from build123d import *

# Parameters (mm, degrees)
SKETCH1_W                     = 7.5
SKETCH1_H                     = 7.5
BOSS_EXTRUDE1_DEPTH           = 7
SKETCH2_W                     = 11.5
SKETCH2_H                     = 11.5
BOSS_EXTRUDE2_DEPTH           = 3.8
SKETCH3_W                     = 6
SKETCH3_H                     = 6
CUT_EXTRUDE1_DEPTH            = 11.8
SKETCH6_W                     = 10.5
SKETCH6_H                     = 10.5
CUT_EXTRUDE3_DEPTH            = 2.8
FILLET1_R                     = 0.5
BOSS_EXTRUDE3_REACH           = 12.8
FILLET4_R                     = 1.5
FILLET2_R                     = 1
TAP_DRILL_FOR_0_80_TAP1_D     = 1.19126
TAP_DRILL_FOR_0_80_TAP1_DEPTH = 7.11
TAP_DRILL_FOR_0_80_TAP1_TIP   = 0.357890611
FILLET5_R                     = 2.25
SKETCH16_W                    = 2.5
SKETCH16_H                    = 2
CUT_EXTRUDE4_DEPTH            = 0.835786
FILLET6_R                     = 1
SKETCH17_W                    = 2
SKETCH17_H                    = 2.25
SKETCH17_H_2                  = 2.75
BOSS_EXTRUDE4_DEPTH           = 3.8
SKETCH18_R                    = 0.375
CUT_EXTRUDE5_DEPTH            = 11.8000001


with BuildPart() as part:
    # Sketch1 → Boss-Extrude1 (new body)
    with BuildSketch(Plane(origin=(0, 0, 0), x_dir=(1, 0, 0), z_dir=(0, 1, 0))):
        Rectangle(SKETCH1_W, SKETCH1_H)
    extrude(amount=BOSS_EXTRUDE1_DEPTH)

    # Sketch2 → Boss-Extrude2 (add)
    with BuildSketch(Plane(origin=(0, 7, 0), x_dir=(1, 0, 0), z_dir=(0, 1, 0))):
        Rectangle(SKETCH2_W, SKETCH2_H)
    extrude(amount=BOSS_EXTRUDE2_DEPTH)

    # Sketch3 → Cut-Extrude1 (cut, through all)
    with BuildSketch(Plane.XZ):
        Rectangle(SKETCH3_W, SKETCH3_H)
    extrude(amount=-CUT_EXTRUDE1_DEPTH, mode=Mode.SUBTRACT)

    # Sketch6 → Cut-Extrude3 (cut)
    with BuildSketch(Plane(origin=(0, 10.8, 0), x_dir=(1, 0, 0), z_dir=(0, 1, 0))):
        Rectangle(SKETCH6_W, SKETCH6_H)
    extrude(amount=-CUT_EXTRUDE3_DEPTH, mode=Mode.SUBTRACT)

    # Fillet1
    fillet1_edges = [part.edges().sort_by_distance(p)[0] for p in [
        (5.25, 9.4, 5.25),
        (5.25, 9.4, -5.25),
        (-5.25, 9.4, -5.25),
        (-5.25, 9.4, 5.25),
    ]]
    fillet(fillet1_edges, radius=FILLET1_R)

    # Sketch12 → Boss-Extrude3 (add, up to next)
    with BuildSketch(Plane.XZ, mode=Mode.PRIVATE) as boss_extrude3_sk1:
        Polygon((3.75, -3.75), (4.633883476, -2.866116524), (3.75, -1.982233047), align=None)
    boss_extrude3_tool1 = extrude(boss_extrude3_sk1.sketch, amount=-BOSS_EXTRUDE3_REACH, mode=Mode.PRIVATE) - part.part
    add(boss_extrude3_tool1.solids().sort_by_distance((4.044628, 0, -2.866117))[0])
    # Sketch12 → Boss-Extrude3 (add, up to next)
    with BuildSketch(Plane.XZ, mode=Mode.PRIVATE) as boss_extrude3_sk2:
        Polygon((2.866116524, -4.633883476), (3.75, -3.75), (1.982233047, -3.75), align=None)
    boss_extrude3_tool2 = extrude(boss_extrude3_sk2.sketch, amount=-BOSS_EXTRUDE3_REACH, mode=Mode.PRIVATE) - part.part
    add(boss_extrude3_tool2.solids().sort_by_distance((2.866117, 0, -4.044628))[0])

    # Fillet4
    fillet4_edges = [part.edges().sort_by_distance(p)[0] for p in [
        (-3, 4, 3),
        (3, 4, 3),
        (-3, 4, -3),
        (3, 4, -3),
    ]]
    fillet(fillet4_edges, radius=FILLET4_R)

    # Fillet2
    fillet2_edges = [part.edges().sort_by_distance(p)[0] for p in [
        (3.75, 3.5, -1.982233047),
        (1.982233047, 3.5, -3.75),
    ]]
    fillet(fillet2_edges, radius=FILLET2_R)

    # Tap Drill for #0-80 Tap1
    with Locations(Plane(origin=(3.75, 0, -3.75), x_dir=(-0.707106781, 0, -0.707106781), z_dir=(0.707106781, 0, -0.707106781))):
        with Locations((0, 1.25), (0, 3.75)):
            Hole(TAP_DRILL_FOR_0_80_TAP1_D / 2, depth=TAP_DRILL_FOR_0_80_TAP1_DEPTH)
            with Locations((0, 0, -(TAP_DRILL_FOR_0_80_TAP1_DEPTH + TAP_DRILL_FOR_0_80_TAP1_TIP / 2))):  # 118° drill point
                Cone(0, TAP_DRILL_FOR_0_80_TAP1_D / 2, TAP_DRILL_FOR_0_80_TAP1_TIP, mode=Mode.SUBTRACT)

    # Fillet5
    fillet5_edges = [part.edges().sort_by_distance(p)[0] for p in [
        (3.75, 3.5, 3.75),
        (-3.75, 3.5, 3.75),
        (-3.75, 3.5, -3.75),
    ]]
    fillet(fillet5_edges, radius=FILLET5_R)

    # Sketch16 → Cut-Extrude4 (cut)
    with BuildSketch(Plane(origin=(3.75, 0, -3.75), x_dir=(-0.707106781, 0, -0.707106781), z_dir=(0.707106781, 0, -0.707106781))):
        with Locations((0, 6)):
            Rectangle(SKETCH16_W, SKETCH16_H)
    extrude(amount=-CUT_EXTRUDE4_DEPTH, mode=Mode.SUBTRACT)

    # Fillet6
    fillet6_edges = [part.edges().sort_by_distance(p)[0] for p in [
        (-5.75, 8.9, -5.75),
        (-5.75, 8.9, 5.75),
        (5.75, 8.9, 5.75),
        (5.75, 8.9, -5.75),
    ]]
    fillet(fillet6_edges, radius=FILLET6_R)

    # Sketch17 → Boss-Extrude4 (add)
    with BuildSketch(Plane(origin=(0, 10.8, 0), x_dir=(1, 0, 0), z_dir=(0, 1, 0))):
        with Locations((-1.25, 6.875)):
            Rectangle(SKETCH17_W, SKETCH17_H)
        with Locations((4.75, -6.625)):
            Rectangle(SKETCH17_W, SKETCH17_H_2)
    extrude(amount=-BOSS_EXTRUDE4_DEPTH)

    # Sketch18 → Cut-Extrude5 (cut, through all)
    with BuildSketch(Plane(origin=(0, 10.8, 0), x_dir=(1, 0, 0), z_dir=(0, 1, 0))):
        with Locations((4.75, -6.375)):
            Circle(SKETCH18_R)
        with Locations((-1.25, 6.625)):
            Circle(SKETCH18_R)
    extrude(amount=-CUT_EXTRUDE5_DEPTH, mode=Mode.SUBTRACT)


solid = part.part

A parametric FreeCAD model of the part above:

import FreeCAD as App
import Part
import Sketcher

V = App.Vector
Q = App.Units.Quantity


def edges_at(feature, points):
    """Names of the edges that pass closest to the given points."""
    edges = feature.Shape.Edges
    near = lambda p: min(range(len(edges)), key=lambda i: edges[i].distToShape(Part.Vertex(*p))[0])
    return sorted({f"Edge{near(p) + 1}" for p in points})

doc = App.newDocument("Part")
body = doc.addObject("PartDesign::Body", "Body")

# Sketch on XZ plane
sketch1 = body.newObject("Sketcher::SketchObject", "Sketch")
sketch1.AttachmentSupport = (doc.getObject("XZ_Plane"), [""])
sketch1.MapMode = "FlatFace"
sketch1.addGeometry(Part.LineSegment(V(-4, -4, 0), V(-4, 4, 0)), False)
sketch1.addGeometry(Part.LineSegment(V(-4, 4, 0), V(4, 4, 0)), False)
sketch1.addGeometry(Part.LineSegment(V(4, 4, 0), V(4, -4, 0)), False)
sketch1.addGeometry(Part.LineSegment(V(4, -4, 0), V(-4, -4, 0)), False)
sketch1.addConstraint(Sketcher.Constraint("Coincident", 0, 2, 1, 1))
sketch1.addConstraint(Sketcher.Constraint("Coincident", 1, 2, 2, 1))
sketch1.addConstraint(Sketcher.Constraint("Coincident", 2, 2, 3, 1))
sketch1.addConstraint(Sketcher.Constraint("Coincident", 3, 2, 0, 1))
sketch1.addConstraint(Sketcher.Constraint("Vertical", 0))
sketch1.addConstraint(Sketcher.Constraint("Horizontal", 1))
sketch1.addConstraint(Sketcher.Constraint("Vertical", 2))
sketch1.addConstraint(Sketcher.Constraint("Horizontal", 3))
sketch1.addConstraint(Sketcher.Constraint("Symmetric", 0, 2, 2, 2, -1, 1))
sketch1.addConstraint(Sketcher.Constraint("Equal", 3, 0))
sketch1.addConstraint(Sketcher.Constraint("DistanceX", 1, 1, 1, 2, Q("7.5 mm")))
pad1 = body.newObject("PartDesign::Pad", "Pad")
pad1.Profile = sketch1
pad1.Length = 7
pad1.Reversed = True

# Sketch on XZ plane
sketch2 = body.newObject("Sketcher::SketchObject", "Sketch001")
sketch2.AttachmentSupport = (doc.getObject("XZ_Plane"), [""])
sketch2.MapMode = "FlatFace"
sketch2.AttachmentOffset = App.Placement(V(0, 0, -7), App.Rotation())
sketch2.addGeometry(Part.LineSegment(V(-6, -6, 0), V(-6, 6, 0)), False)
sketch2.addGeometry(Part.LineSegment(V(-6, 6, 0), V(6, 6, 0)), False)
sketch2.addGeometry(Part.LineSegment(V(6, 6, 0), V(6, -6, 0)), False)
sketch2.addGeometry(Part.LineSegment(V(6, -6, 0), V(-6, -6, 0)), False)
sketch2.addConstraint(Sketcher.Constraint("Coincident", 0, 2, 1, 1))
sketch2.addConstraint(Sketcher.Constraint("Coincident", 1, 2, 2, 1))
sketch2.addConstraint(Sketcher.Constraint("Coincident", 2, 2, 3, 1))
sketch2.addConstraint(Sketcher.Constraint("Coincident", 3, 2, 0, 1))
sketch2.addConstraint(Sketcher.Constraint("Vertical", 0))
sketch2.addConstraint(Sketcher.Constraint("Horizontal", 1))
sketch2.addConstraint(Sketcher.Constraint("Vertical", 2))
sketch2.addConstraint(Sketcher.Constraint("Horizontal", 3))
sketch2.addConstraint(Sketcher.Constraint("Symmetric", 0, 2, 2, 2, -1, 1))
sketch2.addConstraint(Sketcher.Constraint("Equal", 3, 0))
sketch2.addConstraint(Sketcher.Constraint("DistanceX", 1, 1, 1, 2, Q("11.5 mm")))
pad2 = body.newObject("PartDesign::Pad", "Pad001")
pad2.Profile = sketch2
pad2.Length = 3.8
pad2.Reversed = True

# Sketch on XZ plane
sketch3 = body.newObject("Sketcher::SketchObject", "Sketch002")
sketch3.AttachmentSupport = (doc.getObject("XZ_Plane"), [""])
sketch3.MapMode = "FlatFace"
sketch3.addGeometry(Part.LineSegment(V(-3, 3, 0), V(-3, -3, 0)), False)
sketch3.addGeometry(Part.LineSegment(V(-3, -3, 0), V(3, -3, 0)), False)
sketch3.addGeometry(Part.LineSegment(V(3, -3, 0), V(3, 3, 0)), False)
sketch3.addGeometry(Part.LineSegment(V(3, 3, 0), V(-3, 3, 0)), False)
sketch3.addConstraint(Sketcher.Constraint("Coincident", 0, 2, 1, 1))
sketch3.addConstraint(Sketcher.Constraint("Coincident", 1, 2, 2, 1))
sketch3.addConstraint(Sketcher.Constraint("Coincident", 2, 2, 3, 1))
sketch3.addConstraint(Sketcher.Constraint("Coincident", 3, 2, 0, 1))
sketch3.addConstraint(Sketcher.Constraint("Vertical", 0))
sketch3.addConstraint(Sketcher.Constraint("Horizontal", 1))
sketch3.addConstraint(Sketcher.Constraint("Vertical", 2))
sketch3.addConstraint(Sketcher.Constraint("Horizontal", 3))
sketch3.addConstraint(Sketcher.Constraint("Symmetric", 0, 2, 2, 2, -1, 1))
sketch3.addConstraint(Sketcher.Constraint("Equal", 3, 0))
sketch3.addConstraint(Sketcher.Constraint("DistanceX", 1, 1, 1, 2, Q("6 mm")))
pocket1 = body.newObject("PartDesign::Pocket", "Pocket")
pocket1.Profile = sketch3
pocket1.Type = "ThroughAll"

# Sketch on XZ plane
sketch4 = body.newObject("Sketcher::SketchObject", "Sketch003")
sketch4.AttachmentSupport = (doc.getObject("XZ_Plane"), [""])
sketch4.MapMode = "FlatFace"
sketch4.AttachmentOffset = App.Placement(V(0, 0, -10.8), App.Rotation())
sketch4.addGeometry(Part.LineSegment(V(-5, -5, 0), V(-5, 5, 0)), False)
sketch4.addGeometry(Part.LineSegment(V(-5, 5, 0), V(5, 5, 0)), False)
sketch4.addGeometry(Part.LineSegment(V(5, 5, 0), V(5, -5, 0)), False)
sketch4.addGeometry(Part.LineSegment(V(5, -5, 0), V(-5, -5, 0)), False)
sketch4.addConstraint(Sketcher.Constraint("Coincident", 0, 2, 1, 1))
sketch4.addConstraint(Sketcher.Constraint("Coincident", 1, 2, 2, 1))
sketch4.addConstraint(Sketcher.Constraint("Coincident", 2, 2, 3, 1))
sketch4.addConstraint(Sketcher.Constraint("Coincident", 3, 2, 0, 1))
sketch4.addConstraint(Sketcher.Constraint("Vertical", 0))
sketch4.addConstraint(Sketcher.Constraint("Horizontal", 1))
sketch4.addConstraint(Sketcher.Constraint("Vertical", 2))
sketch4.addConstraint(Sketcher.Constraint("Horizontal", 3))
sketch4.addConstraint(Sketcher.Constraint("Symmetric", 0, 2, 2, 2, -1, 1))
sketch4.addConstraint(Sketcher.Constraint("Equal", 3, 0))
sketch4.addConstraint(Sketcher.Constraint("DistanceX", 1, 1, 1, 2, Q("10.5 mm")))
pocket2 = body.newObject("PartDesign::Pocket", "Pocket001")
pocket2.Profile = sketch4
pocket2.Length = 2.8
pocket2.Reversed = True
doc.recompute()

fillet = body.newObject("PartDesign::Fillet", "Fillet")
fillet.Base = (pocket2, edges_at(pocket2, [
    (5.25, 9.4, 5.25),
    (5.25, 9.4, -5.25),
    (-5.25, 9.4, -5.25),
    (-5.25, 9.4, 5.25),
]))
fillet.Radius = 0.5

# Sketch on XZ plane
sketch5 = body.newObject("Sketcher::SketchObject", "Sketch004")
sketch5.AttachmentSupport = (doc.getObject("XZ_Plane"), [""])
sketch5.MapMode = "FlatFace"
sketch5.addGeometry(Part.LineSegment(V(3.8, -3.8, 0), V(4.6, -2.9, 0)), False)
sketch5.addGeometry(Part.LineSegment(V(4.6, -2.9, 0), V(3.8, -2, 0)), False)
sketch5.addGeometry(Part.LineSegment(V(3.8, -2, 0), V(3.8, -3.8, 0)), False)
sketch5.addConstraint(Sketcher.Constraint("Coincident", 0, 2, 1, 1))
sketch5.addConstraint(Sketcher.Constraint("Coincident", 1, 2, 2, 1))
sketch5.addConstraint(Sketcher.Constraint("Coincident", 2, 2, 0, 1))
sketch5.addConstraint(Sketcher.Constraint("Vertical", 2))
sketch5.addConstraint(Sketcher.Constraint("Perpendicular", 0, 1))
sketch5.addConstraint(Sketcher.Constraint("Equal", 0, 1))
sketch5.addConstraint(Sketcher.Constraint("Distance", 0, Q("1.25 mm")))
sketch5.addConstraint(Sketcher.Constraint("DistanceX", -1, 1, 1, 2, Q("3.75 mm")))
sketch5.addConstraint(Sketcher.Constraint("DistanceY", 2, 2, -1, 1, Q("3.75 mm")))
pad3 = body.newObject("PartDesign::Pad", "Pad002")
pad3.Profile = sketch5
pad3.Type = "UpToFirst"
pad3.Reversed = True

# Sketch on XZ plane
sketch6 = body.newObject("Sketcher::SketchObject", "Sketch005")
sketch6.AttachmentSupport = (doc.getObject("XZ_Plane"), [""])
sketch6.MapMode = "FlatFace"
sketch6.addGeometry(Part.LineSegment(V(2.9, -4.6, 0), V(3.8, -3.8, 0)), False)
sketch6.addGeometry(Part.LineSegment(V(3.8, -3.8, 0), V(2, -3.8, 0)), False)
sketch6.addGeometry(Part.LineSegment(V(2, -3.8, 0), V(2.9, -4.6, 0)), False)
sketch6.addConstraint(Sketcher.Constraint("Coincident", 0, 2, 1, 1))
sketch6.addConstraint(Sketcher.Constraint("Coincident", 1, 2, 2, 1))
sketch6.addConstraint(Sketcher.Constraint("Coincident", 2, 2, 0, 1))
sketch6.addConstraint(Sketcher.Constraint("Horizontal", 1))
sketch6.addConstraint(Sketcher.Constraint("Perpendicular", 0, 2))
sketch6.addConstraint(Sketcher.Constraint("Equal", 0, 2))
sketch6.addConstraint(Sketcher.Constraint("Distance", 0, Q("1.25 mm")))
sketch6.addConstraint(Sketcher.Constraint("DistanceX", -1, 1, 0, 2, Q("3.75 mm")))
sketch6.addConstraint(Sketcher.Constraint("DistanceY", 0, 2, -1, 1, Q("3.75 mm")))
pad4 = body.newObject("PartDesign::Pad", "Pad003")
pad4.Profile = sketch6
pad4.Type = "UpToFirst"
pad4.Reversed = True
doc.recompute()

fillet2 = body.newObject("PartDesign::Fillet", "Fillet001")
fillet2.Base = (pad4, edges_at(pad4, [
    (-3, 4, 3),
    (3, 4, 3),
    (-3, 4, -3),
    (3, 4, -3),
]))
fillet2.Radius = 1.5
doc.recompute()

fillet3 = body.newObject("PartDesign::Fillet", "Fillet002")
fillet3.Base = (fillet2, edges_at(fillet2, [(3.75, 3.5, -1.982), (1.982, 3.5, -3.75)]))
fillet3.Radius = 1

# Sketch on an angled plane
sketch7 = body.newObject("Sketcher::SketchObject", "Sketch006")
sketch7.Placement = App.Placement(V(3.75, 0, -3.75), App.Rotation(V(-0.707106781, 0, -0.707106781), V(0, 0.999999999, 0), V(0.707106781, 0, -0.707106781), "ZXY"))
sketch7.addGeometry(Part.Circle(V(0, 1.2, 0), V(0, 0, 1), 0.6), False)
sketch7.addGeometry(Part.Circle(V(0, 3.7, 0), V(0, 0, 1), 0.6), False)
sketch7.addConstraint(Sketcher.Constraint("Equal", 0, 1))
sketch7.addConstraint(Sketcher.Constraint("PointOnObject", 0, 3, -2))
sketch7.addConstraint(Sketcher.Constraint("PointOnObject", 1, 3, -2))
sketch7.addConstraint(Sketcher.Constraint("DistanceY", 0, 3, 1, 3, Q("2.5 mm")))
sketch7.addConstraint(Sketcher.Constraint("Diameter", 0, Q("1.19126 mm")))
sketch7.addConstraint(Sketcher.Constraint("DistanceY", -1, 1, 0, 3, Q("1.25 mm")))
doc.recompute()
hole = body.newObject("PartDesign::Hole", "Hole")
hole.Profile = sketch7
hole.ThreadType = "None"
hole.Diameter = 1.19126
hole.DepthType = "Dimension"
hole.Depth = 7.11
hole.DrillPoint = "Angled"
hole.DrillPointAngle = 118
doc.recompute()

fillet4 = body.newObject("PartDesign::Fillet", "Fillet003")
fillet4.Base = (hole, edges_at(hole, [(3.75, 3.5, 3.75), (-3.75, 3.5, 3.75), (-3.75, 3.5, -3.75)]))
fillet4.Radius = 2.25

# Sketch on an angled plane
sketch8 = body.newObject("Sketcher::SketchObject", "Sketch007")
sketch8.Placement = App.Placement(V(3.75, 0, -3.75), App.Rotation(V(-0.707106781, 0, -0.707106781), V(0, 0.999999999, 0), V(0.707106781, 0, -0.707106781), "ZXY"))
sketch8.addGeometry(Part.LineSegment(V(-1.2, 7, 0), V(-1.2, 5, 0)), False)
sketch8.addGeometry(Part.LineSegment(V(-1.2, 5, 0), V(1.2, 5, 0)), False)
sketch8.addGeometry(Part.LineSegment(V(1.2, 5, 0), V(1.2, 7, 0)), False)
sketch8.addGeometry(Part.LineSegment(V(1.2, 7, 0), V(-1.2, 7, 0)), False)
sketch8.addConstraint(Sketcher.Constraint("Coincident", 0, 2, 1, 1))
sketch8.addConstraint(Sketcher.Constraint("Coincident", 1, 2, 2, 1))
sketch8.addConstraint(Sketcher.Constraint("Coincident", 2, 2, 3, 1))
sketch8.addConstraint(Sketcher.Constraint("Coincident", 3, 2, 0, 1))
sketch8.addConstraint(Sketcher.Constraint("Vertical", 0))
sketch8.addConstraint(Sketcher.Constraint("Horizontal", 1))
sketch8.addConstraint(Sketcher.Constraint("Vertical", 2))
sketch8.addConstraint(Sketcher.Constraint("Horizontal", 3))
sketch8.addConstraint(Sketcher.Constraint("DistanceY", 0, 2, 0, 1, Q("2 mm")))
sketch8.addConstraint(Sketcher.Constraint("DistanceX", 1, 1, 1, 2, Q("2.5 mm")))
sketch8.addConstraint(Sketcher.Constraint("DistanceY", -1, 1, 0, 2, Q("5 mm")))
sketch8.addConstraint(Sketcher.Constraint("DistanceX", 0, 2, -1, 1, Q("1.25 mm")))
pocket3 = body.newObject("PartDesign::Pocket", "Pocket002")
pocket3.Profile = sketch8
pocket3.Length = 0.835786
doc.recompute()

fillet5 = body.newObject("PartDesign::Fillet", "Fillet004")
fillet5.Base = (pocket3, edges_at(pocket3, [
    (-5.75, 8.9, -5.75),
    (-5.75, 8.9, 5.75),
    (5.75, 8.9, 5.75),
    (5.75, 8.9, -5.75),
]))
fillet5.Radius = 1

# Sketch on XZ plane
sketch9 = body.newObject("Sketcher::SketchObject", "Sketch008")
sketch9.AttachmentSupport = (doc.getObject("XZ_Plane"), [""])
sketch9.MapMode = "FlatFace"
sketch9.AttachmentOffset = App.Placement(V(0, 0, -10.8), App.Rotation())
sketch9.addGeometry(Part.LineSegment(V(-2.2, -8, 0), V(-2.2, -5.8, 0)), False)
sketch9.addGeometry(Part.LineSegment(V(-2.2, -5.8, 0), V(-0.2, -5.8, 0)), False)
sketch9.addGeometry(Part.LineSegment(V(-0.2, -5.8, 0), V(-0.2, -8, 0)), False)
sketch9.addGeometry(Part.LineSegment(V(-0.2, -8, 0), V(-2.2, -8, 0)), False)
sketch9.addGeometry(Part.LineSegment(V(3.8, 5.2, 0), V(3.8, 8, 0)), False)
sketch9.addGeometry(Part.LineSegment(V(3.8, 8, 0), V(5.8, 8, 0)), False)
sketch9.addGeometry(Part.LineSegment(V(5.8, 8, 0), V(5.8, 5.2, 0)), False)
sketch9.addGeometry(Part.LineSegment(V(5.8, 5.2, 0), V(3.8, 5.2, 0)), False)
sketch9.addConstraint(Sketcher.Constraint("Coincident", 0, 2, 1, 1))
sketch9.addConstraint(Sketcher.Constraint("Coincident", 1, 2, 2, 1))
sketch9.addConstraint(Sketcher.Constraint("Coincident", 2, 2, 3, 1))
sketch9.addConstraint(Sketcher.Constraint("Coincident", 3, 2, 0, 1))
sketch9.addConstraint(Sketcher.Constraint("Coincident", 4, 2, 5, 1))
sketch9.addConstraint(Sketcher.Constraint("Coincident", 5, 2, 6, 1))
sketch9.addConstraint(Sketcher.Constraint("Coincident", 6, 2, 7, 1))
sketch9.addConstraint(Sketcher.Constraint("Coincident", 7, 2, 4, 1))
sketch9.addConstraint(Sketcher.Constraint("Vertical", 0))
sketch9.addConstraint(Sketcher.Constraint("Horizontal", 1))
sketch9.addConstraint(Sketcher.Constraint("Vertical", 2))
sketch9.addConstraint(Sketcher.Constraint("Horizontal", 3))
sketch9.addConstraint(Sketcher.Constraint("Vertical", 4))
sketch9.addConstraint(Sketcher.Constraint("Horizontal", 5))
sketch9.addConstraint(Sketcher.Constraint("Vertical", 6))
sketch9.addConstraint(Sketcher.Constraint("Horizontal", 7))
sketch9.addConstraint(Sketcher.Constraint("Equal", 3, 5))
sketch9.addConstraint(Sketcher.Constraint("DistanceX", 1, 1, 1, 2, Q("2 mm")))
sketch9.addConstraint(Sketcher.Constraint("DistanceY", 2, 2, -1, 1, Q("8 mm")))
sketch9.addConstraint(Sketcher.Constraint("DistanceY", -1, 1, 4, 2, Q("8 mm")))
sketch9.addConstraint(Sketcher.Constraint("DistanceX", 1, 2, 4, 2, Q("4 mm")))
sketch9.addConstraint(Sketcher.Constraint("DistanceY", 1, 2, 6, 2, Q("11 mm")))
sketch9.addConstraint(Sketcher.Constraint("DistanceY", 0, 1, 0, 2, Q("2.25 mm")))
sketch9.addConstraint(Sketcher.Constraint("DistanceX", 0, 2, -1, 1, Q("2.25 mm")))
pad5 = body.newObject("PartDesign::Pad", "Pad004")
pad5.Profile = sketch9
pad5.Length = 3.8

# Sketch on XZ plane
sketch10 = body.newObject("Sketcher::SketchObject", "Sketch009")
sketch10.AttachmentSupport = (doc.getObject("XZ_Plane"), [""])
sketch10.MapMode = "FlatFace"
sketch10.AttachmentOffset = App.Placement(V(0, 0, -10.8), App.Rotation())
sketch10.addGeometry(Part.Circle(V(4.75, 6.38, 0), V(0, 0, 1), 0.38), False)
sketch10.addGeometry(Part.Circle(V(-1.25, -6.62, 0), V(0, 0, 1), 0.38), False)
sketch10.addConstraint(Sketcher.Constraint("Equal", 0, 1))
sketch10.addConstraint(Sketcher.Constraint("Diameter", 0, Q("0.75 mm")))
sketch10.addConstraint(Sketcher.Constraint("DistanceX", 1, 3, 0, 3, Q("6 mm")))
sketch10.addConstraint(Sketcher.Constraint("DistanceY", 1, 3, 0, 3, Q("13 mm")))
sketch10.addConstraint(Sketcher.Constraint("DistanceX", -1, 1, 0, 3, Q("4.75 mm")))
sketch10.addConstraint(Sketcher.Constraint("DistanceY", -1, 1, 0, 3, Q("6.375 mm")))
pocket4 = body.newObject("PartDesign::Pocket", "Pocket003")
pocket4.Profile = sketch10
pocket4.Type = "ThroughAll"
pocket4.Reversed = True

doc.recompute()
